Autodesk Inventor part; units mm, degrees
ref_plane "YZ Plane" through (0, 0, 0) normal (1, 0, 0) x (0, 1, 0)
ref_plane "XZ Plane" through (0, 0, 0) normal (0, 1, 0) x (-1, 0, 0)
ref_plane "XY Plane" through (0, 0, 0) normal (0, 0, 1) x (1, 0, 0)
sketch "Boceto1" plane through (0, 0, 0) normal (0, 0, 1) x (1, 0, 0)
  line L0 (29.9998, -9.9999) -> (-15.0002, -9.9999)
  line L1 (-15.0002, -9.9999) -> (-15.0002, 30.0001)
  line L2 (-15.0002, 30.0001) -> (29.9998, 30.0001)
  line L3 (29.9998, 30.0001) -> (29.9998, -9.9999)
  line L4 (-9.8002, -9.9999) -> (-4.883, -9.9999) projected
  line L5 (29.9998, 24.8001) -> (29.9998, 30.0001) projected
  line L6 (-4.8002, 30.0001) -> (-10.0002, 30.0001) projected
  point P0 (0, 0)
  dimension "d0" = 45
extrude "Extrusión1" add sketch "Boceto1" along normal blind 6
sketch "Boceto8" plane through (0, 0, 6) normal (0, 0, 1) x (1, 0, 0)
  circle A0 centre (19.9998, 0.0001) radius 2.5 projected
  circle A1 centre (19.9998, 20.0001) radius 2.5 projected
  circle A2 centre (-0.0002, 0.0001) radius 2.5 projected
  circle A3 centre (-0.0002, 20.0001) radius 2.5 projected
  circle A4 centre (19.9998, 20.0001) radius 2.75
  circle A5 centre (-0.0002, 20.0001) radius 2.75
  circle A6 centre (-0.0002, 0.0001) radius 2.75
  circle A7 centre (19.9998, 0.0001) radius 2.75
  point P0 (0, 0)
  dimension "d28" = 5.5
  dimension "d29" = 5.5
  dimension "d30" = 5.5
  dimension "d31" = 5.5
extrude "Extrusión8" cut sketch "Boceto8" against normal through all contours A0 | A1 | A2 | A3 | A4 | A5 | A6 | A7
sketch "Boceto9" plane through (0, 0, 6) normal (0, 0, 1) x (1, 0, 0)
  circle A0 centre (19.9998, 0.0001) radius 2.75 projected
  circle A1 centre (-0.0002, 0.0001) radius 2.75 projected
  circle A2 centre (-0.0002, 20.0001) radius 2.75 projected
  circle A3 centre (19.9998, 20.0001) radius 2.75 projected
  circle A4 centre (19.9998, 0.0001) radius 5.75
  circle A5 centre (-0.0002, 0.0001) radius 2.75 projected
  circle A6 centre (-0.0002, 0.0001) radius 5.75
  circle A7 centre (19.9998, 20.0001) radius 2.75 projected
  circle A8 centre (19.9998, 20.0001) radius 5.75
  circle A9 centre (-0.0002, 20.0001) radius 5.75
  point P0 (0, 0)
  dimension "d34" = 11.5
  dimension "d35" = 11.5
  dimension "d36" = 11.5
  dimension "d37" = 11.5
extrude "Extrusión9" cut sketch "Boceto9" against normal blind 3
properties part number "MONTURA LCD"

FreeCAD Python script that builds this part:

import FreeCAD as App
import Part
import Sketcher


def add_polygon(sketch, points):
    """Adds a closed chain of lines whose ends are joined by coincident constraints."""
    first, n = sketch.GeometryCount, len(points)
    for a, b in zip(points, points[1:] + points[:1]):
        sketch.addGeometry(Part.LineSegment(App.Vector(*a, 0), App.Vector(*b, 0)), False)
    for i in range(n):
        sketch.addConstraint(Sketcher.Constraint("Coincident", first + i, 2, first + (i + 1) % n, 1))

doc = App.newDocument("Part")
params = doc.addObject("Spreadsheet::Sheet", "Params")
for row, (alias, value) in enumerate([
    ("sketch1_width", "45 mm"),
    ("sketch1_height", "40 mm"),
    ("pad1_length", "6 mm"),
    ("sketch2_diameter", "5.5 mm"),
    ("sketch3_diameter", "11.5 mm"),
    ("sketch3_diameter2", "5.5 mm"),
    ("pocket2_length", "3 mm"),
], start=1):
    params.set(f"A{row}", alias)
    params.set(f"B{row}", "=" + value)
    params.setAlias(f"B{row}", alias)

body = doc.addObject("PartDesign::Body", "Body")

# Sketch on XY plane
sketch1 = doc.addObject("Sketcher::SketchObject", "Sketch")
body.addObject(sketch1)
sketch1.AttachmentSupport = (doc.XY_Plane, [""])
sketch1.MapMode = "FlatFace"
add_polygon(sketch1, [(-15, -10), (30, -10), (30, 30), (-15, 30)])  # lines 0-3
sketch1.addConstraint([
    Sketcher.Constraint("Horizontal", 0),
    Sketcher.Constraint("Vertical", 1),
    Sketcher.Constraint("Horizontal", 2),
    Sketcher.Constraint("Vertical", 3),
    Sketcher.Constraint("DistanceX", 0, 1, 0, 2, 45.0),
    Sketcher.Constraint("DistanceY", 1, 1, 1, 2, 40.0),
    Sketcher.Constraint("DistanceY", 0, 2, -1, 1, 10.0),
    Sketcher.Constraint("DistanceX", -1, 1, 0, 2, 29.9998),
])
sketch1.setExpression("Constraints[8]", "Params.sketch1_width")
sketch1.setExpression("Constraints[9]", "Params.sketch1_height")
pad1 = doc.addObject("PartDesign::Pad", "Pad")
body.addObject(pad1)
pad1.Profile = sketch1
pad1.setExpression("Length", "Params.pad1_length")

# Sketch on XY plane
sketch2 = doc.addObject("Sketcher::SketchObject", "Sketch001")
body.addObject(sketch2)
sketch2.AttachmentSupport = (doc.XY_Plane, [""])
sketch2.MapMode = "FlatFace"
sketch2.AttachmentOffset = App.Placement(App.Vector(0, 0, 6), App.Rotation())
sketch2.addGeometry([
    Part.Circle(App.Vector(20, 0, 0), App.Vector(0, 0, 1), 2.8),
    Part.Circle(App.Vector(20, 20, 0), App.Vector(0, 0, 1), 2.8),
    Part.Circle(App.Vector(0, 0, 0), App.Vector(0, 0, 1), 2.8),
    Part.Circle(App.Vector(0, 20, 0), App.Vector(0, 0, 1), 2.8),
], False)
sketch2.addConstraint([
    Sketcher.Constraint("Coincident", 2, 3, -1, 1),
    Sketcher.Constraint("Equal", 0, 1),
    Sketcher.Constraint("Equal", 1, 2),
    Sketcher.Constraint("Equal", 2, 3),
    Sketcher.Constraint("PointOnObject", 0, 3, -1),
    Sketcher.Constraint("Horizontal", 1, 3, 3, 3),
    Sketcher.Constraint("Vertical", 0, 3, 1, 3),
    Sketcher.Constraint("Vertical", 2, 3, 3, 3),
    Sketcher.Constraint("Diameter", 0, 5.5),
    Sketcher.Constraint("DistanceY", -1, 1, 1, 3, 20.0),
    Sketcher.Constraint("DistanceX", 2, 3, 0, 3, 20.0),
])
sketch2.setExpression("Constraints[8]", "Params.sketch2_diameter")
pocket1 = doc.addObject("PartDesign::Pocket", "Pocket")
body.addObject(pocket1)
pocket1.Profile = sketch2
pocket1.Type = "ThroughAll"

# Sketch on XY plane
sketch3 = doc.addObject("Sketcher::SketchObject", "Sketch002")
body.addObject(sketch3)
sketch3.AttachmentSupport = (doc.XY_Plane, [""])
sketch3.MapMode = "FlatFace"
sketch3.AttachmentOffset = App.Placement(App.Vector(0, 0, 6), App.Rotation())
sketch3.addGeometry([
    Part.Circle(App.Vector(20, 0, 0), App.Vector(0, 0, 1), 5.8),  # 0
    Part.Circle(App.Vector(20, 0, 0), App.Vector(0, 0, 1), 2.8),  # 1
    Part.Circle(App.Vector(0, 0, 0), App.Vector(0, 0, 1), 5.8),  # 2
    Part.Circle(App.Vector(0, 0, 0), App.Vector(0, 0, 1), 2.8),  # 3
    Part.Circle(App.Vector(20, 20, 0), App.Vector(0, 0, 1), 5.8),  # 4
    Part.Circle(App.Vector(20, 20, 0), App.Vector(0, 0, 1), 2.8),  # 5
    Part.Circle(App.Vector(0, 20, 0), App.Vector(0, 0, 1), 5.8),  # 6
    Part.Circle(App.Vector(0, 20, 0), App.Vector(0, 0, 1), 2.8),  # 7
], False)
sketch3.addConstraint([
    Sketcher.Constraint("Coincident", 2, 3, -1, 1),
    Sketcher.Constraint("Coincident", 3, 3, -1, 1),
    Sketcher.Constraint("Coincident", 1, 3, 0, 3),
    Sketcher.Constraint("Coincident", 5, 3, 4, 3),
    Sketcher.Constraint("Coincident", 7, 3, 6, 3),
    Sketcher.Constraint("Equal", 0, 2),
    Sketcher.Constraint("Equal", 1, 3),
    Sketcher.Constraint("Equal", 2, 4),
    Sketcher.Constraint("Equal", 3, 5),
    Sketcher.Constraint("Equal", 4, 6),
    Sketcher.Constraint("Equal", 5, 7),
    Sketcher.Constraint("PointOnObject", 0, 3, -1),
    Sketcher.Constraint("Horizontal", 5, 3, 6, 3),
    Sketcher.Constraint("Vertical", 1, 3, 4, 3),
    Sketcher.Constraint("Vertical", 3, 3, 6, 3),
    Sketcher.Constraint("Diameter", 0, 11.5),
    Sketcher.Constraint("Diameter", 1, 5.5),
    Sketcher.Constraint("DistanceY", -1, 1, 4, 3, 20.0),
    Sketcher.Constraint("DistanceX", 2, 3, 0, 3, 20.0),
])
sketch3.setExpression("Constraints[15]", "Params.sketch3_diameter")
sketch3.setExpression("Constraints[16]", "Params.sketch3_diameter2")
pocket2 = doc.addObject("PartDesign::Pocket", "Pocket001")
body.addObject(pocket2)
pocket2.Profile = sketch3
pocket2.setExpression("Length", "Params.pocket2_length")

doc.recompute()
